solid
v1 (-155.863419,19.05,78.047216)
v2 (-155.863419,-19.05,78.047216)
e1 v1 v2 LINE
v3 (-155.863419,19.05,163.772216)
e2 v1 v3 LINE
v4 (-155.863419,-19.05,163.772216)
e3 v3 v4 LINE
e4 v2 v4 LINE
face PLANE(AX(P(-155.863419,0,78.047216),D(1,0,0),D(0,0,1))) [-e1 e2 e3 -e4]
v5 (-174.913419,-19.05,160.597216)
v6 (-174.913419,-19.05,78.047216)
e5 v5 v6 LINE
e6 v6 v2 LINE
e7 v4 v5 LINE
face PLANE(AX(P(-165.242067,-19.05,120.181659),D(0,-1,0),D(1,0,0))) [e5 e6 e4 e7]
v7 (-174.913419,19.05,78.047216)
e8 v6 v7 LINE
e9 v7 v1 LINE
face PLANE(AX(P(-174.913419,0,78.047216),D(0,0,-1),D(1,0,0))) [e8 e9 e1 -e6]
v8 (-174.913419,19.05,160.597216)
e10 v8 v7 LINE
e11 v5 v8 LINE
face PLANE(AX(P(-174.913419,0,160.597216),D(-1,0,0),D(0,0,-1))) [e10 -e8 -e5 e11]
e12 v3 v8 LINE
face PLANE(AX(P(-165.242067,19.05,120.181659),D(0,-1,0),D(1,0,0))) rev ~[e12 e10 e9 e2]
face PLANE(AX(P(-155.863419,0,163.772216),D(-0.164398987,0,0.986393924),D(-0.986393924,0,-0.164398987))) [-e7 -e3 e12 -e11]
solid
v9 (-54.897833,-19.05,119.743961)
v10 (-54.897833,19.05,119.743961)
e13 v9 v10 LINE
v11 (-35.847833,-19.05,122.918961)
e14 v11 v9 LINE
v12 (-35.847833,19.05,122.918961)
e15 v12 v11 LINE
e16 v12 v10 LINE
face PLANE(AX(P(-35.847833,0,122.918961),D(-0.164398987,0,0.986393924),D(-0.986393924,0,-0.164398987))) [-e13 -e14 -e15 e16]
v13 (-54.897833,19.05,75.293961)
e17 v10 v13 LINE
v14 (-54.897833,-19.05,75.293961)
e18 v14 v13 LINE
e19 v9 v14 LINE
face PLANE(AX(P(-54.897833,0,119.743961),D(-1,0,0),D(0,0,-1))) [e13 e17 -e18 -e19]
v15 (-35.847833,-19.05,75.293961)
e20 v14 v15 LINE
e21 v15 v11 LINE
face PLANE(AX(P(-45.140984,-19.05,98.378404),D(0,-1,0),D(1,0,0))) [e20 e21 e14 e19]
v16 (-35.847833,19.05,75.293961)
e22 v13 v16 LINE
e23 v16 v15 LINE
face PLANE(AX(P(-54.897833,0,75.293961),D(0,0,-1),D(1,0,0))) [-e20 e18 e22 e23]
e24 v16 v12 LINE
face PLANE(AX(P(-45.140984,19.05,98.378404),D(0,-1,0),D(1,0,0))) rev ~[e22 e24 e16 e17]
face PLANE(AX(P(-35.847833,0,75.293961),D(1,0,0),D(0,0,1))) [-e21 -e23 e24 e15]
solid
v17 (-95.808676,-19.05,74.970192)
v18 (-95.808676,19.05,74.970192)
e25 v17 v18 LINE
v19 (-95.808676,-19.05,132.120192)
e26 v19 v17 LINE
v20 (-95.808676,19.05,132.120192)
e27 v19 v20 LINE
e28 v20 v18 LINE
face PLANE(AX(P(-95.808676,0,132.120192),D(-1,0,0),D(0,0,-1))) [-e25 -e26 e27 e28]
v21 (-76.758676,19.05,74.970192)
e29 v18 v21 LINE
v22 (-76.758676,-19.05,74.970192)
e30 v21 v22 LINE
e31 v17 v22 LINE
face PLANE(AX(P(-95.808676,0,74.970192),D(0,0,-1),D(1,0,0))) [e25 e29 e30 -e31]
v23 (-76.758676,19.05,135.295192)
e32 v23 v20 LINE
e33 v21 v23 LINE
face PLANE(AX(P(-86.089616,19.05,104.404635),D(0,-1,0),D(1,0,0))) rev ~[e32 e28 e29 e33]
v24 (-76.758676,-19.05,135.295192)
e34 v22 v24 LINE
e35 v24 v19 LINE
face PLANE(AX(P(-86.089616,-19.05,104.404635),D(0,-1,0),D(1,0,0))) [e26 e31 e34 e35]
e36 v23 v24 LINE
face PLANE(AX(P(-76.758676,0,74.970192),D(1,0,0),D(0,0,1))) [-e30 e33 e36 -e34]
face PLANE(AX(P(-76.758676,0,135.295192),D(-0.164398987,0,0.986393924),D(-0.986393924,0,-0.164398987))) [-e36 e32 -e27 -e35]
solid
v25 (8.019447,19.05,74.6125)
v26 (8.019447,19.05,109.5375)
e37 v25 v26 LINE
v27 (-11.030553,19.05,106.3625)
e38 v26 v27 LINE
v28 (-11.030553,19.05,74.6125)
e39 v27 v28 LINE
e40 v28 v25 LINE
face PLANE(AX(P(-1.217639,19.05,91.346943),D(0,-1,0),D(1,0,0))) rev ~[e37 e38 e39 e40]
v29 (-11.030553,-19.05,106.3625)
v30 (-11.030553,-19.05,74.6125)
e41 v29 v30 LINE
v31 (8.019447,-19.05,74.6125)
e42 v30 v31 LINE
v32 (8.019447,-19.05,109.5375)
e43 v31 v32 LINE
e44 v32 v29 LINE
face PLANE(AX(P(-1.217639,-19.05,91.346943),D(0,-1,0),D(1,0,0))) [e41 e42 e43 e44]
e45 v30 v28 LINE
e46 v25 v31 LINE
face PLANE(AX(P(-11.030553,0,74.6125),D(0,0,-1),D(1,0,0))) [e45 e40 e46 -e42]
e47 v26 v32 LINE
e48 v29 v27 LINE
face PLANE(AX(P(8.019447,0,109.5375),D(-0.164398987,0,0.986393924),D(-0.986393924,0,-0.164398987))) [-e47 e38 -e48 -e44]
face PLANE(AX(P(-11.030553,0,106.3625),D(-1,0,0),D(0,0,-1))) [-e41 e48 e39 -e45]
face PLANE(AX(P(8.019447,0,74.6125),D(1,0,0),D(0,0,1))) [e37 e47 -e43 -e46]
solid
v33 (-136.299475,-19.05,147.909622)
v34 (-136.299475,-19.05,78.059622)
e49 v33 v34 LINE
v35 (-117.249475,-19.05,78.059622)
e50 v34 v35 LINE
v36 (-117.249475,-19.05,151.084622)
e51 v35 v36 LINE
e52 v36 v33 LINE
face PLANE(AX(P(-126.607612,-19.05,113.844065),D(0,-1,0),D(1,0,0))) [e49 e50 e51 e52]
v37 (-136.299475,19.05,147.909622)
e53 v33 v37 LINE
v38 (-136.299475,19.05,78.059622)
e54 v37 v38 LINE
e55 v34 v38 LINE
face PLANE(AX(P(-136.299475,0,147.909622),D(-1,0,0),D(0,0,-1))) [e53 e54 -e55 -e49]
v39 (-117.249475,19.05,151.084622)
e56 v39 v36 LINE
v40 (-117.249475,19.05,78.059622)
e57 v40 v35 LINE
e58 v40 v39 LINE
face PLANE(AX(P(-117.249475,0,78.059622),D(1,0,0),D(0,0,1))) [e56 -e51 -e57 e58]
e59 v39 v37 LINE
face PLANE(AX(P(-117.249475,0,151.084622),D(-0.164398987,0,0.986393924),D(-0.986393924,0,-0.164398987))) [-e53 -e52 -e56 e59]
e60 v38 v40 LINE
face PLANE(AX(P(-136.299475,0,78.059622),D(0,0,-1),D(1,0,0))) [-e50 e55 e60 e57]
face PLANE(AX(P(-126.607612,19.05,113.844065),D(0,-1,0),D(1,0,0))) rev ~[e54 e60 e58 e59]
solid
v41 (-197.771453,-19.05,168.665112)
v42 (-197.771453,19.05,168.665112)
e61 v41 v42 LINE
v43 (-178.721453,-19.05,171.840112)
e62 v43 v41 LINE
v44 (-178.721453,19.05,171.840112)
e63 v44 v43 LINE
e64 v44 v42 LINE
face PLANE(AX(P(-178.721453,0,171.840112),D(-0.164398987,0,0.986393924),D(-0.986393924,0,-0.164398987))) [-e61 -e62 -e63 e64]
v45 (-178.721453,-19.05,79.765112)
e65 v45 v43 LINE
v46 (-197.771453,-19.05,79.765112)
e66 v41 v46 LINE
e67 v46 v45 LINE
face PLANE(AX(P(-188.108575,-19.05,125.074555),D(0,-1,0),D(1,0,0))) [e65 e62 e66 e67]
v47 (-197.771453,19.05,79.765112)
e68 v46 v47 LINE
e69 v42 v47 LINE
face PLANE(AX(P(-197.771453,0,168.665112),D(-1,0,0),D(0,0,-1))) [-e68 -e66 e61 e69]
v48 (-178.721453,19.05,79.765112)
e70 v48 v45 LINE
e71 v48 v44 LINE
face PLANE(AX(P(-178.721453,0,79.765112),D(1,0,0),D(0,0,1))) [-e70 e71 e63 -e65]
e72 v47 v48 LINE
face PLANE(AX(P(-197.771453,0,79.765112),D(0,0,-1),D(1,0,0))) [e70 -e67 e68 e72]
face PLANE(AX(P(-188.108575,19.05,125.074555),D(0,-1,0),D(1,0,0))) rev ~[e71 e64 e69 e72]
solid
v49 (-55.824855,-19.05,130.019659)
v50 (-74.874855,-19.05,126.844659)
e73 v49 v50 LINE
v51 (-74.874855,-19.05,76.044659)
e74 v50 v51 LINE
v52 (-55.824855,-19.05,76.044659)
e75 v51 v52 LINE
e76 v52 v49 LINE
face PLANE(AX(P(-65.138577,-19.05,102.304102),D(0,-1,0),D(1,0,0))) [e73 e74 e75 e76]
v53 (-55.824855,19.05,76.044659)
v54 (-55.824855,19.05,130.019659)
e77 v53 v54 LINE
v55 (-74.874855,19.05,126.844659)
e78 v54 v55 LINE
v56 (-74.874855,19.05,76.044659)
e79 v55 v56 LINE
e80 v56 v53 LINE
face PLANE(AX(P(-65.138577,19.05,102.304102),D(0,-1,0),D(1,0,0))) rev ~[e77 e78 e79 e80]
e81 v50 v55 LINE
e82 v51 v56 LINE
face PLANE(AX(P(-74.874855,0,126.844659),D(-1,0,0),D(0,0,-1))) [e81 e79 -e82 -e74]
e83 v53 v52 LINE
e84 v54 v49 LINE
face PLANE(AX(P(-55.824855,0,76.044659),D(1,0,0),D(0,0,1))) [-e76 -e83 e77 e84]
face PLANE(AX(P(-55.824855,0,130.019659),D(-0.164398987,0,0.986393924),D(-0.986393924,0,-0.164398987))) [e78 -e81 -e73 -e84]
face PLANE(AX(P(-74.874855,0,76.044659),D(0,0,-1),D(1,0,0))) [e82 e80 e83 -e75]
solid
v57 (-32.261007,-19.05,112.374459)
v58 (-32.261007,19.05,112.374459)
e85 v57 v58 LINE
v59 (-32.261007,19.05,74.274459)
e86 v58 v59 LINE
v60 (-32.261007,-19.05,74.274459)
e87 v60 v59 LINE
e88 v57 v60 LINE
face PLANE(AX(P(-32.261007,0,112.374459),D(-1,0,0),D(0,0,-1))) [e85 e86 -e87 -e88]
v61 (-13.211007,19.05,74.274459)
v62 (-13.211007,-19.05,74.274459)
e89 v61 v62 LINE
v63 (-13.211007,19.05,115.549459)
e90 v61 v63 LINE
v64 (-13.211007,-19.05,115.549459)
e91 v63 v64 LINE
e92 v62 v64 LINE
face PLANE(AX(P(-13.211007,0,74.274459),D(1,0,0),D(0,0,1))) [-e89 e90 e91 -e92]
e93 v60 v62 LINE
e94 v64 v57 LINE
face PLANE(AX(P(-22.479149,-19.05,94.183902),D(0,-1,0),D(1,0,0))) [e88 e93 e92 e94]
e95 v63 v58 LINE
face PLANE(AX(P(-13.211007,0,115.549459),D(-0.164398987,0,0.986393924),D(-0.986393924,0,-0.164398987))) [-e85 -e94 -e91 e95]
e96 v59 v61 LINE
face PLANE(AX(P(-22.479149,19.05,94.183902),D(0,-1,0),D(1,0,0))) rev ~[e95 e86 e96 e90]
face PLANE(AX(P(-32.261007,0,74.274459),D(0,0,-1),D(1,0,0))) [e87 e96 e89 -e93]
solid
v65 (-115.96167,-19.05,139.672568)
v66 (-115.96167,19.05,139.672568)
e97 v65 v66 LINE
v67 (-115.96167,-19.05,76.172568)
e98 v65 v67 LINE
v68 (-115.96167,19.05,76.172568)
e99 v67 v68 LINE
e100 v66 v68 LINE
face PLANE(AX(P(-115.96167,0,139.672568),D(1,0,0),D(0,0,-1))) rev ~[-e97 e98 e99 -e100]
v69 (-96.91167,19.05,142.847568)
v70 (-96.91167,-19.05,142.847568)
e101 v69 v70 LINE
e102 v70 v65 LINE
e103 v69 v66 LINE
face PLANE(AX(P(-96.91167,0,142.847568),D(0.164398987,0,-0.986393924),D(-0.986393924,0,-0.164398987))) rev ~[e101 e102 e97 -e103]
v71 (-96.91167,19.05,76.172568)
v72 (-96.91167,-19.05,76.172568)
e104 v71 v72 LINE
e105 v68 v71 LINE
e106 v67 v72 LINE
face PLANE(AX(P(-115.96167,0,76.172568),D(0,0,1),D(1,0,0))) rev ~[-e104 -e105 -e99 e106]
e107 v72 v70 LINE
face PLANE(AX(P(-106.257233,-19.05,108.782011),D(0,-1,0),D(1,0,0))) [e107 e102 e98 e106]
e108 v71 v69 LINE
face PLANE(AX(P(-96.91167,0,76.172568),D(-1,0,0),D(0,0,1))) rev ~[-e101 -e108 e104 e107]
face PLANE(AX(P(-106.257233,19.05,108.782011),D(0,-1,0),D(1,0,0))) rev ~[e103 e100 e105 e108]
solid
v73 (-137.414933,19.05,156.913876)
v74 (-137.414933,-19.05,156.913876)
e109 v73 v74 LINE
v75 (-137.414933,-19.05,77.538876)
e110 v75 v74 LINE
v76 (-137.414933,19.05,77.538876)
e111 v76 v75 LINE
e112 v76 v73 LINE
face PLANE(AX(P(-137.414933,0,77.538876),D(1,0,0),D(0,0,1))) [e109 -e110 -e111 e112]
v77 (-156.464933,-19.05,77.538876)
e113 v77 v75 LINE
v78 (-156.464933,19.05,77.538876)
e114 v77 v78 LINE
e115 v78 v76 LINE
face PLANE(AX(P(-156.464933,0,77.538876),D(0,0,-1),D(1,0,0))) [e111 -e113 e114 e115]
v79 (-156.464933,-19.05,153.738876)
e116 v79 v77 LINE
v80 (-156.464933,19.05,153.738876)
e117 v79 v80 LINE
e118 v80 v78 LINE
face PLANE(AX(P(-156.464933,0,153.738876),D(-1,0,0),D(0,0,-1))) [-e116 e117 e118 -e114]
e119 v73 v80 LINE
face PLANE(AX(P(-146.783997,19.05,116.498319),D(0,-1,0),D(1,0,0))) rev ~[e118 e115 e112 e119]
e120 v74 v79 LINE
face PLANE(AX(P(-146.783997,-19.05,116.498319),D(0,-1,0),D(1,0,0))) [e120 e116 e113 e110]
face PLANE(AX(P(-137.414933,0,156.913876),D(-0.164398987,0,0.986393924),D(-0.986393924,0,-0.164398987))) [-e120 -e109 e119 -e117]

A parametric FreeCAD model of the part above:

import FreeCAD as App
import Part
import Sketcher
Q = App.Units.Quantity

doc = App.newDocument("Part")
body = doc.addObject("PartDesign::Body", "Body")

# Sketch on XZ plane
sketch1 = doc.addObject("Sketcher::SketchObject", "Sketch")
body.addObject(sketch1)
sketch1.AttachmentSupport = (doc.XZ_Plane, [""])
sketch1.MapMode = "FlatFace"
sketch1.addGeometry([
    Part.LineSegment(App.Vector(-11, 75, 0), App.Vector(8, 75, 0)),
    Part.LineSegment(App.Vector(8, 75, 0), App.Vector(8, 110, 0)),
    Part.LineSegment(App.Vector(8, 110, 0), App.Vector(-11, 106, 0)),
    Part.LineSegment(App.Vector(-11, 106, 0), App.Vector(-11, 75, 0)),
], False)
sketch1.addConstraint([
    Sketcher.Constraint("Coincident", 0, 2, 1, 1),
    Sketcher.Constraint("Coincident", 1, 2, 2, 1),
    Sketcher.Constraint("Coincident", 2, 2, 3, 1),
    Sketcher.Constraint("Coincident", 3, 2, 0, 1),
    Sketcher.Constraint("Horizontal", 0),
    Sketcher.Constraint("Vertical", 1),
    Sketcher.Constraint("Vertical", 3),
    Sketcher.Constraint("DistanceX", 0, 1, 0, 2, Q("0.75 in")),
    Sketcher.Constraint("DistanceY", 3, 2, 3, 1, Q("1.25 in")),
    Sketcher.Constraint("DistanceY", 1, 1, 1, 2, Q("1.375 in")),
    Sketcher.Constraint("DistanceY", -1, 1, 0, 2, Q("2.9375 in")),
    Sketcher.Constraint("DistanceX", -1, 1, 0, 2, Q("8.019447 mm")),
])
pad1 = doc.addObject("PartDesign::Pad", "Pad")
body.addObject(pad1)
pad1.Profile = sketch1
pad1.Length = Q("1.5 in")
pad1.Midplane = True
body2 = doc.addObject("PartDesign::Body", "Body001")

# Sketch on XZ plane
sketch2 = doc.addObject("Sketcher::SketchObject", "Sketch001")
body2.addObject(sketch2)
sketch2.AttachmentSupport = (doc.getObject("XZ_Plane001"), [""])
sketch2.MapMode = "FlatFace"
sketch2.addGeometry([
    Part.LineSegment(App.Vector(-32, 74, 0), App.Vector(-13, 74, 0)),
    Part.LineSegment(App.Vector(-13, 74, 0), App.Vector(-13, 116, 0)),
    Part.LineSegment(App.Vector(-13, 116, 0), App.Vector(-32, 112, 0)),
    Part.LineSegment(App.Vector(-32, 112, 0), App.Vector(-32, 74, 0)),
], False)
sketch2.addConstraint([
    Sketcher.Constraint("Coincident", 0, 2, 1, 1),
    Sketcher.Constraint("Coincident", 1, 2, 2, 1),
    Sketcher.Constraint("Coincident", 2, 2, 3, 1),
    Sketcher.Constraint("Coincident", 3, 2, 0, 1),
    Sketcher.Constraint("Horizontal", 0),
    Sketcher.Constraint("Vertical", 1),
    Sketcher.Constraint("Vertical", 3),
    Sketcher.Constraint("DistanceY", 3, 2, 3, 1, Q("1.5 in")),
    Sketcher.Constraint("DistanceX", 0, 1, 0, 2, Q("0.75 in")),
    Sketcher.Constraint("DistanceY", 1, 1, 1, 2, Q("1.625 in")),
    Sketcher.Constraint("DistanceY", -1, 1, 0, 2, Q("74.274459 mm")),
    Sketcher.Constraint("DistanceX", 0, 2, -1, 1, Q("13.211007 mm")),
])
pad2 = doc.addObject("PartDesign::Pad", "Pad001")
body2.addObject(pad2)
pad2.Profile = sketch2
pad2.Length = Q("1.5 in")
pad2.Midplane = True
body3 = doc.addObject("PartDesign::Body", "Body002")

# Sketch on XZ plane
sketch3 = doc.addObject("Sketcher::SketchObject", "Sketch002")
body3.addObject(sketch3)
sketch3.AttachmentSupport = (doc.getObject("XZ_Plane002"), [""])
sketch3.MapMode = "FlatFace"
sketch3.addGeometry([
    Part.LineSegment(App.Vector(-55, 75, 0), App.Vector(-36, 75, 0)),
    Part.LineSegment(App.Vector(-36, 75, 0), App.Vector(-36, 123, 0)),
    Part.LineSegment(App.Vector(-36, 123, 0), App.Vector(-55, 120, 0)),
    Part.LineSegment(App.Vector(-55, 120, 0), App.Vector(-55, 75, 0)),
], False)
sketch3.addConstraint([
    Sketcher.Constraint("Coincident", 0, 2, 1, 1),
    Sketcher.Constraint("Coincident", 1, 2, 2, 1),
    Sketcher.Constraint("Coincident", 2, 2, 3, 1),
    Sketcher.Constraint("Coincident", 3, 2, 0, 1),
    Sketcher.Constraint("Horizontal", 0),
    Sketcher.Constraint("Vertical", 1),
    Sketcher.Constraint("Vertical", 3),
    Sketcher.Constraint("DistanceX", 0, 1, 0, 2, Q("0.75 in")),
    Sketcher.Constraint("DistanceY", 3, 2, 3, 1, Q("1.75 in")),
    Sketcher.Constraint("DistanceY", 1, 1, 1, 2, Q("1.875 in")),
    Sketcher.Constraint("DistanceY", -1, 1, 0, 2, Q("75.293961 mm")),
    Sketcher.Constraint("DistanceX", 0, 2, -1, 1, Q("35.847833 mm")),
])
pad3 = doc.addObject("PartDesign::Pad", "Pad002")
body3.addObject(pad3)
pad3.Profile = sketch3
pad3.Length = Q("1.5 in")
pad3.Midplane = True
body4 = doc.addObject("PartDesign::Body", "Body003")

# Sketch on XZ plane
sketch4 = doc.addObject("Sketcher::SketchObject", "Sketch003")
body4.addObject(sketch4)
sketch4.AttachmentSupport = (doc.getObject("XZ_Plane003"), [""])
sketch4.MapMode = "FlatFace"
sketch4.addGeometry([
    Part.LineSegment(App.Vector(-75, 76, 0), App.Vector(-56, 76, 0)),
    Part.LineSegment(App.Vector(-56, 76, 0), App.Vector(-56, 130, 0)),
    Part.LineSegment(App.Vector(-56, 130, 0), App.Vector(-75, 127, 0)),
    Part.LineSegment(App.Vector(-75, 127, 0), App.Vector(-75, 76, 0)),
], False)
sketch4.addConstraint([
    Sketcher.Constraint("Coincident", 0, 2, 1, 1),
    Sketcher.Constraint("Coincident", 1, 2, 2, 1),
    Sketcher.Constraint("Coincident", 2, 2, 3, 1),
    Sketcher.Constraint("Coincident", 3, 2, 0, 1),
    Sketcher.Constraint("Horizontal", 0),
    Sketcher.Constraint("Vertical", 1),
    Sketcher.Constraint("Vertical", 3),
    Sketcher.Constraint("DistanceY", 3, 2, 3, 1, Q("2 in")),
    Sketcher.Constraint("DistanceX", 0, 1, 0, 2, Q("0.75 in")),
    Sketcher.Constraint("DistanceY", 1, 1, 1, 2, Q("2.125 in")),
    Sketcher.Constraint("DistanceY", -1, 1, 0, 2, Q("76.044659 mm")),
    Sketcher.Constraint("DistanceX", 0, 2, -1, 1, Q("55.824855 mm")),
])
pad4 = doc.addObject("PartDesign::Pad", "Pad003")
body4.addObject(pad4)
pad4.Profile = sketch4
pad4.Length = Q("1.5 in")
pad4.Midplane = True
body5 = doc.addObject("PartDesign::Body", "Body004")

# Sketch on XZ plane
sketch5 = doc.addObject("Sketcher::SketchObject", "Sketch004")
body5.addObject(sketch5)
sketch5.AttachmentSupport = (doc.getObject("XZ_Plane004"), [""])
sketch5.MapMode = "FlatFace"
sketch5.addGeometry([
    Part.LineSegment(App.Vector(-96, 75, 0), App.Vector(-77, 75, 0)),
    Part.LineSegment(App.Vector(-77, 75, 0), App.Vector(-77, 135, 0)),
    Part.LineSegment(App.Vector(-77, 135, 0), App.Vector(-96, 132, 0)),
    Part.LineSegment(App.Vector(-96, 132, 0), App.Vector(-96, 75, 0)),
], False)
sketch5.addConstraint([
    Sketcher.Constraint("Coincident", 0, 2, 1, 1),
    Sketcher.Constraint("Coincident", 1, 2, 2, 1),
    Sketcher.Constraint("Coincident", 2, 2, 3, 1),
    Sketcher.Constraint("Coincident", 3, 2, 0, 1),
    Sketcher.Constraint("Horizontal", 0),
    Sketcher.Constraint("Vertical", 1),
    Sketcher.Constraint("Vertical", 3),
    Sketcher.Constraint("DistanceX", 0, 1, 0, 2, Q("0.75 in")),
    Sketcher.Constraint("DistanceY", 3, 2, 3, 1, Q("2.25 in")),
    Sketcher.Constraint("DistanceY", 1, 1, 1, 2, Q("2.375 in")),
    Sketcher.Constraint("DistanceY", -1, 1, 0, 2, Q("74.970192 mm")),
    Sketcher.Constraint("DistanceX", 0, 2, -1, 1, Q("76.758676 mm")),
])
pad5 = doc.addObject("PartDesign::Pad", "Pad004")
body5.addObject(pad5)
pad5.Profile = sketch5
pad5.Length = Q("1.5 in")
pad5.Midplane = True
body6 = doc.addObject("PartDesign::Body", "Body005")
body6.AllowCompound = True

# Sketch on XZ plane
sketch6 = doc.addObject("Sketcher::SketchObject", "Sketch005")
body6.addObject(sketch6)
sketch6.AttachmentSupport = (doc.getObject("XZ_Plane005"), [""])
sketch6.MapMode = "FlatFace"
sketch6.addGeometry([
    Part.LineSegment(App.Vector(-116, 76, 0), App.Vector(-97, 76, 0)),  # 0
    Part.LineSegment(App.Vector(-97, 76, 0), App.Vector(-97, 143, 0)),  # 1
    Part.LineSegment(App.Vector(-97, 143, 0), App.Vector(-116, 140, 0)),  # 2
    Part.LineSegment(App.Vector(-116, 140, 0), App.Vector(-116, 76, 0)),  # 3
    Part.LineSegment(App.Vector(-136, 78, 0), App.Vector(-117, 78, 0)),  # 4
    Part.LineSegment(App.Vector(-117, 78, 0), App.Vector(-117, 151, 0)),  # 5
    Part.LineSegment(App.Vector(-117, 151, 0), App.Vector(-136, 148, 0)),  # 6
    Part.LineSegment(App.Vector(-136, 148, 0), App.Vector(-136, 78, 0)),  # 7
], False)
sketch6.addConstraint([
    Sketcher.Constraint("Coincident", 0, 2, 1, 1),
    Sketcher.Constraint("Coincident", 1, 2, 2, 1),
    Sketcher.Constraint("Coincident", 2, 2, 3, 1),
    Sketcher.Constraint("Coincident", 3, 2, 0, 1),
    Sketcher.Constraint("Coincident", 4, 2, 5, 1),
    Sketcher.Constraint("Coincident", 5, 2, 6, 1),
    Sketcher.Constraint("Coincident", 6, 2, 7, 1),
    Sketcher.Constraint("Coincident", 7, 2, 4, 1),
    Sketcher.Constraint("Horizontal", 0),
    Sketcher.Constraint("Vertical", 1),
    Sketcher.Constraint("Vertical", 3),
    Sketcher.Constraint("Horizontal", 4),
    Sketcher.Constraint("Vertical", 5),
    Sketcher.Constraint("Vertical", 7),
    Sketcher.Constraint("Parallel", 2, 6),
    Sketcher.Constraint("Equal", 0, 4),
    Sketcher.Constraint("DistanceY", 3, 2, 3, 1, Q("2.5 in")),
    Sketcher.Constraint("DistanceX", 0, 1, 0, 2, Q("0.75 in")),
    Sketcher.Constraint("DistanceY", 7, 2, 7, 1, Q("2.75 in")),
    Sketcher.Constraint("DistanceY", 1, 1, 1, 2, Q("2.625 in")),
    Sketcher.Constraint("DistanceX", 0, 2, -1, 1, Q("96.91167 mm")),
    Sketcher.Constraint("DistanceY", -1, 1, 0, 2, Q("76.172568 mm")),
    Sketcher.Constraint("DistanceY", -1, 1, 5, 2, Q("151.084622 mm")),
    Sketcher.Constraint("DistanceX", 4, 2, -1, 1, Q("117.249475 mm")),
])
pad6 = doc.addObject("PartDesign::Pad", "Pad005")
body6.addObject(pad6)
pad6.Profile = sketch6
pad6.Length = Q("1.5 in")
pad6.Midplane = True
body7 = doc.addObject("PartDesign::Body", "Body006")

# Sketch on XZ plane
sketch7 = doc.addObject("Sketcher::SketchObject", "Sketch006")
body7.addObject(sketch7)
sketch7.AttachmentSupport = (doc.getObject("XZ_Plane006"), [""])
sketch7.MapMode = "FlatFace"
sketch7.addGeometry([
    Part.LineSegment(App.Vector(-156, 78, 0), App.Vector(-137, 78, 0)),
    Part.LineSegment(App.Vector(-137, 78, 0), App.Vector(-137, 157, 0)),
    Part.LineSegment(App.Vector(-137, 157, 0), App.Vector(-156, 154, 0)),
    Part.LineSegment(App.Vector(-156, 154, 0), App.Vector(-156, 78, 0)),
], False)
sketch7.addConstraint([
    Sketcher.Constraint("Coincident", 0, 2, 1, 1),
    Sketcher.Constraint("Coincident", 1, 2, 2, 1),
    Sketcher.Constraint("Coincident", 2, 2, 3, 1),
    Sketcher.Constraint("Coincident", 3, 2, 0, 1),
    Sketcher.Constraint("Horizontal", 0),
    Sketcher.Constraint("Vertical", 1),
    Sketcher.Constraint("Vertical", 3),
    Sketcher.Constraint("DistanceY", 3, 2, 3, 1, Q("3 in")),
    Sketcher.Constraint("DistanceX", 0, 1, 0, 2, Q("0.75 in")),
    Sketcher.Constraint("DistanceY", 1, 1, 1, 2, Q("3.125 in")),
    Sketcher.Constraint("DistanceX", 0, 2, -1, 1, Q("137.414933 mm")),
    Sketcher.Constraint("DistanceY", -1, 1, 0, 2, Q("77.538876 mm")),
])
pad7 = doc.addObject("PartDesign::Pad", "Pad006")
body7.addObject(pad7)
pad7.Profile = sketch7
pad7.Length = Q("1.5 in")
pad7.Midplane = True
body8 = doc.addObject("PartDesign::Body", "Body007")

# Sketch on XZ plane
sketch8 = doc.addObject("Sketcher::SketchObject", "Sketch007")
body8.addObject(sketch8)
sketch8.AttachmentSupport = (doc.getObject("XZ_Plane007"), [""])
sketch8.MapMode = "FlatFace"
sketch8.addGeometry([
    Part.LineSegment(App.Vector(-175, 78, 0), App.Vector(-156, 78, 0)),
    Part.LineSegment(App.Vector(-156, 78, 0), App.Vector(-156, 164, 0)),
    Part.LineSegment(App.Vector(-156, 164, 0), App.Vector(-175, 161, 0)),
    Part.LineSegment(App.Vector(-175, 161, 0), App.Vector(-175, 78, 0)),
], False)
sketch8.addConstraint([
    Sketcher.Constraint("Coincident", 0, 2, 1, 1),
    Sketcher.Constraint("Coincident", 1, 2, 2, 1),
    Sketcher.Constraint("Coincident", 2, 2, 3, 1),
    Sketcher.Constraint("Coincident", 3, 2, 0, 1),
    Sketcher.Constraint("Horizontal", 0),
    Sketcher.Constraint("Vertical", 1),
    Sketcher.Constraint("Vertical", 3),
    Sketcher.Constraint("DistanceX", 0, 1, 0, 2, Q("0.75 in")),
    Sketcher.Constraint("DistanceY", 3, 2, 3, 1, Q("3.25 in")),
    Sketcher.Constraint("DistanceY", 1, 1, 1, 2, Q("3.375 in")),
    Sketcher.Constraint("DistanceX", 0, 2, -1, 1, Q("155.863419 mm")),
    Sketcher.Constraint("DistanceY", -1, 1, 0, 2, Q("78.047216 mm")),
])
pad8 = doc.addObject("PartDesign::Pad", "Pad007")
body8.addObject(pad8)
pad8.Profile = sketch8
pad8.Length = Q("1.5 in")
pad8.Midplane = True
body9 = doc.addObject("PartDesign::Body", "Body008")

# Sketch on XZ plane
sketch9 = doc.addObject("Sketcher::SketchObject", "Sketch008")
body9.addObject(sketch9)
sketch9.AttachmentSupport = (doc.getObject("XZ_Plane008"), [""])
sketch9.MapMode = "FlatFace"
sketch9.addGeometry([
    Part.LineSegment(App.Vector(-198, 80, 0), App.Vector(-179, 80, 0)),
    Part.LineSegment(App.Vector(-179, 80, 0), App.Vector(-179, 172, 0)),
    Part.LineSegment(App.Vector(-179, 172, 0), App.Vector(-198, 169, 0)),
    Part.LineSegment(App.Vector(-198, 169, 0), App.Vector(-198, 80, 0)),
], False)
sketch9.addConstraint([
    Sketcher.Constraint("Coincident", 0, 2, 1, 1),
    Sketcher.Constraint("Coincident", 1, 2, 2, 1),
    Sketcher.Constraint("Coincident", 2, 2, 3, 1),
    Sketcher.Constraint("Coincident", 3, 2, 0, 1),
    Sketcher.Constraint("Horizontal", 0),
    Sketcher.Constraint("Vertical", 1),
    Sketcher.Constraint("Vertical", 3),
    Sketcher.Constraint("DistanceY", 3, 2, 3, 1, Q("3.5 in")),
    Sketcher.Constraint("DistanceX", 0, 1, 0, 2, Q("0.75 in")),
    Sketcher.Constraint("DistanceY", 1, 1, 1, 2, Q("3.625 in")),
    Sketcher.Constraint("DistanceY", -1, 1, 0, 2, Q("79.765112 mm")),
    Sketcher.Constraint("DistanceX", 0, 2, -1, 1, Q("178.721453 mm")),
])
pad9 = doc.addObject("PartDesign::Pad", "Pad008")
body9.addObject(pad9)
pad9.Profile = sketch9
pad9.Length = Q("1.5 in")
pad9.Midplane = True

doc.recompute()
